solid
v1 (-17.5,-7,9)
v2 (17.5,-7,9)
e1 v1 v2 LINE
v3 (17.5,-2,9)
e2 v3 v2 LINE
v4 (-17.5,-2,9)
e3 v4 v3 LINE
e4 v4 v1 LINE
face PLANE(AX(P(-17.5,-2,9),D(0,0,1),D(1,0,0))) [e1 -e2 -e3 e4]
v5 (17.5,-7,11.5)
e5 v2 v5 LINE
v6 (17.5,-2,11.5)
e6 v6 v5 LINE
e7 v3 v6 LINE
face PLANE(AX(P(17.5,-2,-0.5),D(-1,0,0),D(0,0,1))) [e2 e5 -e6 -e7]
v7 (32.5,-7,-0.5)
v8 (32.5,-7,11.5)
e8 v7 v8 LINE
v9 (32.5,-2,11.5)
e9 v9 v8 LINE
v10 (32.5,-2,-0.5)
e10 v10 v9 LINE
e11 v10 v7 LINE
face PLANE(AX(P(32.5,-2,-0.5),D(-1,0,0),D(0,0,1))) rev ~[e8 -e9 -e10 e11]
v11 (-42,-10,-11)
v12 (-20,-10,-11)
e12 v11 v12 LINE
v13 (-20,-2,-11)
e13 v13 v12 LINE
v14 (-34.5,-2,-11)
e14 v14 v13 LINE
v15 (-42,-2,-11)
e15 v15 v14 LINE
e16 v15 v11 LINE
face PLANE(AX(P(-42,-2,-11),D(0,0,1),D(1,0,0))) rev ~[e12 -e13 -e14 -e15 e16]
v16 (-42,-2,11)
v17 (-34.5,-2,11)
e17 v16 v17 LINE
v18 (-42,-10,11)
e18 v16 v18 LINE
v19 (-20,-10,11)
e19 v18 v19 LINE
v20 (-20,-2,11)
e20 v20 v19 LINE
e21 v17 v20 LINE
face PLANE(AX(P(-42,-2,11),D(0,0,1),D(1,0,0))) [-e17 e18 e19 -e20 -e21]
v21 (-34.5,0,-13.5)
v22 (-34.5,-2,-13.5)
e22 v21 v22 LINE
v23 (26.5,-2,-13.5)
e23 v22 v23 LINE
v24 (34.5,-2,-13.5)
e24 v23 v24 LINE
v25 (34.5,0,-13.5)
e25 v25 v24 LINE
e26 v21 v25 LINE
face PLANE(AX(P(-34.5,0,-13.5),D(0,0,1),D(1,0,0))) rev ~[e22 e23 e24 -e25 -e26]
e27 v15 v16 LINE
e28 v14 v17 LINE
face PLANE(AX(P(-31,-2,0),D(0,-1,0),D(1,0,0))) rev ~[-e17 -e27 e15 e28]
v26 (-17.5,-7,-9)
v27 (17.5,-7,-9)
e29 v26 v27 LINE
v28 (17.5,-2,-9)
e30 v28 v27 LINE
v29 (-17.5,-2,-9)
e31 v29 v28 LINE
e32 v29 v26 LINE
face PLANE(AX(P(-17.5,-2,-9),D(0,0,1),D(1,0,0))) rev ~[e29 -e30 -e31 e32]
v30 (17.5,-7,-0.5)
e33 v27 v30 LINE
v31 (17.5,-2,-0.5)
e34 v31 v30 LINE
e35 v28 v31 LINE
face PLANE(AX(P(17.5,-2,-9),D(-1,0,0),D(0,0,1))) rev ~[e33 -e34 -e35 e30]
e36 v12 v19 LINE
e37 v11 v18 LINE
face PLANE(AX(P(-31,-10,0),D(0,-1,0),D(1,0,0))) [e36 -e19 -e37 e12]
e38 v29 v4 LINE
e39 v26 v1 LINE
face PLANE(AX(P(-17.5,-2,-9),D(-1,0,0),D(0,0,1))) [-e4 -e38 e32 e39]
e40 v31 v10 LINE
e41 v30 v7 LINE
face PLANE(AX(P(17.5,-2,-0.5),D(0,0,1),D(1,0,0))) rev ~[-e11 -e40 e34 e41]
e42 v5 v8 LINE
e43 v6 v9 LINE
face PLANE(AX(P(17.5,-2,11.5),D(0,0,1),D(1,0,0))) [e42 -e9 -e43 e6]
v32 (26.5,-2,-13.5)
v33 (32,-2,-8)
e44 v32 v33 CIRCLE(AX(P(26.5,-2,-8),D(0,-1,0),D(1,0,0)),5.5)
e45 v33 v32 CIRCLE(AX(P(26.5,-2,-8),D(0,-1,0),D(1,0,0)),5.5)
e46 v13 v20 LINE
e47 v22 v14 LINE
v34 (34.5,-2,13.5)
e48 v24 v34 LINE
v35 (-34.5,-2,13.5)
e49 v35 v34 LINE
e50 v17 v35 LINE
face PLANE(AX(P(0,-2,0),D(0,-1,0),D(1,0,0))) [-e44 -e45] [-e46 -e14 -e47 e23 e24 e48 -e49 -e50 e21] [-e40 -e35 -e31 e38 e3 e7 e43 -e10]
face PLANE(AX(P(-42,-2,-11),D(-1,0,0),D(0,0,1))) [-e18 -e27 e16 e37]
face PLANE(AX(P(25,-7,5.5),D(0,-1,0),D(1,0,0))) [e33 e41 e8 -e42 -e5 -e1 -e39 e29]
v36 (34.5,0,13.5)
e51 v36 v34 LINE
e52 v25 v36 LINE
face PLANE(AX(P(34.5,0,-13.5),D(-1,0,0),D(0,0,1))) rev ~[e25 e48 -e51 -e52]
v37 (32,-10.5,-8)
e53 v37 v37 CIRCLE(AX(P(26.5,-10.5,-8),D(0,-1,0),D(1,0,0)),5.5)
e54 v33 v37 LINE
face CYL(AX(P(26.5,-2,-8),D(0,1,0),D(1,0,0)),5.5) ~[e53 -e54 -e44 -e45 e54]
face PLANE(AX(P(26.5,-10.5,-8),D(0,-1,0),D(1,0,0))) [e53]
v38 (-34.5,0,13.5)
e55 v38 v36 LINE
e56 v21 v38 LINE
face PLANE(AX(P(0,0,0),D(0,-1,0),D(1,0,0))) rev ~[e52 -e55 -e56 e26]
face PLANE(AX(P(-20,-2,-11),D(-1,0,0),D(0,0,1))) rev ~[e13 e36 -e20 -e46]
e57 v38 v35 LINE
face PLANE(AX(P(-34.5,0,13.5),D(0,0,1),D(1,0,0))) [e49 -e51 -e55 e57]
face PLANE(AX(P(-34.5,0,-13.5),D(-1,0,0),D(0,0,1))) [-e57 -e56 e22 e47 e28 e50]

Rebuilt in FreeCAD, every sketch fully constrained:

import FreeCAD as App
import Part
import Sketcher
Q = App.Units.Quantity


def add_polygon(sketch, points):
    """Adds a closed chain of lines whose ends are joined by coincident constraints."""
    first, n = sketch.GeometryCount, len(points)
    for a, b in zip(points, points[1:] + points[:1]):
        sketch.addGeometry(Part.LineSegment(App.Vector(*a, 0), App.Vector(*b, 0)), False)
    for i in range(n):
        sketch.addConstraint(Sketcher.Constraint("Coincident", first + i, 2, first + (i + 1) % n, 1))

doc = App.newDocument("Part")
body = doc.addObject("PartDesign::Body", "Body")

sketch1 = body.newObject("Sketcher::SketchObject", "Sketch")
sketch1.AttachmentSupport = (doc.getObject("XZ_Plane"), [""])
sketch1.MapMode = "FlatFace"
add_polygon(sketch1, [(-34.5, 13.5), (-34.5, -13.5), (34.5, -13.5), (34.5, 13.5)])
sketch1.addConstraint([
    Sketcher.Constraint("Vertical", 0),
    Sketcher.Constraint("Horizontal", 1),
    Sketcher.Constraint("Vertical", 2),
    Sketcher.Constraint("Horizontal", 3),
    Sketcher.Constraint("Symmetric", 0, 2, 2, 2, -1, 1),
    Sketcher.Constraint("DistanceX", 1, 1, 1, 2, Q("69 mm")),
    Sketcher.Constraint("DistanceY", 0, 2, 0, 1, Q("27 mm")),
])
pad1 = body.newObject("PartDesign::Pad", "Pad")
pad1.Profile = sketch1
pad1.Length = 2

sketch2 = body.newObject("Sketcher::SketchObject", "Sketch001")
sketch2.AttachmentSupport = (doc.getObject("XZ_Plane"), [""])
sketch2.MapMode = "FlatFace"
sketch2.AttachmentOffset = App.Placement(App.Vector(0, 0, 2), App.Rotation())
add_polygon(sketch2, [(-42, 11), (-42, -11), (-20, -11), (-20, 11)])
sketch2.addConstraint([
    Sketcher.Constraint("Vertical", 0),
    Sketcher.Constraint("Horizontal", 1),
    Sketcher.Constraint("Vertical", 2),
    Sketcher.Constraint("Horizontal", 3),
    Sketcher.Constraint("Equal", 3, 0),
    Sketcher.Constraint("DistanceX", 1, 1, 1, 2, Q("22 mm")),
    Sketcher.Constraint("DistanceX", 0, 2, -1, 1, Q("42 mm")),
    Sketcher.Constraint("DistanceY", 0, 2, -1, 1, Q("11 mm")),
])
pad2 = body.newObject("PartDesign::Pad", "Pad001")
pad2.Profile = sketch2
pad2.Length = 8

sketch3 = body.newObject("Sketcher::SketchObject", "Sketch002")
sketch3.AttachmentSupport = (doc.getObject("XZ_Plane"), [""])
sketch3.MapMode = "FlatFace"
sketch3.AttachmentOffset = App.Placement(App.Vector(0, 0, 2), App.Rotation())
add_polygon(sketch3, [(-17.5, 9), (-17.5, -9), (17.5, -9), (17.5, 9)])
sketch3.addConstraint([
    Sketcher.Constraint("Vertical", 0),
    Sketcher.Constraint("Horizontal", 1),
    Sketcher.Constraint("Vertical", 2),
    Sketcher.Constraint("Horizontal", 3),
    Sketcher.Constraint("Symmetric", 0, 2, 2, 2, -1, 1),
    Sketcher.Constraint("DistanceX", 1, 1, 1, 2, Q("35 mm")),
    Sketcher.Constraint("DistanceY", 0, 2, 0, 1, Q("18 mm")),
])
pad3 = body.newObject("PartDesign::Pad", "Pad002")
pad3.Profile = sketch3
pad3.Length = 5

sketch4 = body.newObject("Sketcher::SketchObject", "Sketch003")
sketch4.AttachmentSupport = (doc.getObject("XZ_Plane"), [""])
sketch4.MapMode = "FlatFace"
sketch4.AttachmentOffset = App.Placement(App.Vector(0, 0, 2), App.Rotation())
add_polygon(sketch4, [(17.5, 11.5), (17.5, -0.5), (32.5, -0.5), (32.5, 11.5)])
sketch4.addConstraint([
    Sketcher.Constraint("Vertical", 0),
    Sketcher.Constraint("Horizontal", 1),
    Sketcher.Constraint("Vertical", 2),
    Sketcher.Constraint("Horizontal", 3),
    Sketcher.Constraint("DistanceX", 1, 1, 1, 2, Q("15 mm")),
    Sketcher.Constraint("DistanceY", 0, 2, 0, 1, Q("12 mm")),
    Sketcher.Constraint("DistanceX", -1, 1, 0, 2, Q("17.5 mm")),
    Sketcher.Constraint("DistanceY", 0, 2, -1, 1, Q("0.5 mm")),
])
pad4 = body.newObject("PartDesign::Pad", "Pad003")
pad4.Profile = sketch4
pad4.Length = 5

sketch5 = body.newObject("Sketcher::SketchObject", "Sketch004")
sketch5.AttachmentSupport = (doc.getObject("XZ_Plane"), [""])
sketch5.MapMode = "FlatFace"
sketch5.AttachmentOffset = App.Placement(App.Vector(0, 0, 2), App.Rotation())
sketch5.addGeometry(Part.Circle(App.Vector(26.5, -8, 0), App.Vector(0, 0, 1), 5.5), False)
sketch5.addConstraint([
    Sketcher.Constraint("Diameter", 0, Q("11 mm")),
    Sketcher.Constraint("DistanceY", 0, 3, -1, 1, Q("8 mm")),
    Sketcher.Constraint("DistanceX", -1, 1, 0, 3, Q("26.5 mm")),
])
pad5 = body.newObject("PartDesign::Pad", "Pad004")
pad5.Profile = sketch5
pad5.Length = 8.5

doc.recompute()
